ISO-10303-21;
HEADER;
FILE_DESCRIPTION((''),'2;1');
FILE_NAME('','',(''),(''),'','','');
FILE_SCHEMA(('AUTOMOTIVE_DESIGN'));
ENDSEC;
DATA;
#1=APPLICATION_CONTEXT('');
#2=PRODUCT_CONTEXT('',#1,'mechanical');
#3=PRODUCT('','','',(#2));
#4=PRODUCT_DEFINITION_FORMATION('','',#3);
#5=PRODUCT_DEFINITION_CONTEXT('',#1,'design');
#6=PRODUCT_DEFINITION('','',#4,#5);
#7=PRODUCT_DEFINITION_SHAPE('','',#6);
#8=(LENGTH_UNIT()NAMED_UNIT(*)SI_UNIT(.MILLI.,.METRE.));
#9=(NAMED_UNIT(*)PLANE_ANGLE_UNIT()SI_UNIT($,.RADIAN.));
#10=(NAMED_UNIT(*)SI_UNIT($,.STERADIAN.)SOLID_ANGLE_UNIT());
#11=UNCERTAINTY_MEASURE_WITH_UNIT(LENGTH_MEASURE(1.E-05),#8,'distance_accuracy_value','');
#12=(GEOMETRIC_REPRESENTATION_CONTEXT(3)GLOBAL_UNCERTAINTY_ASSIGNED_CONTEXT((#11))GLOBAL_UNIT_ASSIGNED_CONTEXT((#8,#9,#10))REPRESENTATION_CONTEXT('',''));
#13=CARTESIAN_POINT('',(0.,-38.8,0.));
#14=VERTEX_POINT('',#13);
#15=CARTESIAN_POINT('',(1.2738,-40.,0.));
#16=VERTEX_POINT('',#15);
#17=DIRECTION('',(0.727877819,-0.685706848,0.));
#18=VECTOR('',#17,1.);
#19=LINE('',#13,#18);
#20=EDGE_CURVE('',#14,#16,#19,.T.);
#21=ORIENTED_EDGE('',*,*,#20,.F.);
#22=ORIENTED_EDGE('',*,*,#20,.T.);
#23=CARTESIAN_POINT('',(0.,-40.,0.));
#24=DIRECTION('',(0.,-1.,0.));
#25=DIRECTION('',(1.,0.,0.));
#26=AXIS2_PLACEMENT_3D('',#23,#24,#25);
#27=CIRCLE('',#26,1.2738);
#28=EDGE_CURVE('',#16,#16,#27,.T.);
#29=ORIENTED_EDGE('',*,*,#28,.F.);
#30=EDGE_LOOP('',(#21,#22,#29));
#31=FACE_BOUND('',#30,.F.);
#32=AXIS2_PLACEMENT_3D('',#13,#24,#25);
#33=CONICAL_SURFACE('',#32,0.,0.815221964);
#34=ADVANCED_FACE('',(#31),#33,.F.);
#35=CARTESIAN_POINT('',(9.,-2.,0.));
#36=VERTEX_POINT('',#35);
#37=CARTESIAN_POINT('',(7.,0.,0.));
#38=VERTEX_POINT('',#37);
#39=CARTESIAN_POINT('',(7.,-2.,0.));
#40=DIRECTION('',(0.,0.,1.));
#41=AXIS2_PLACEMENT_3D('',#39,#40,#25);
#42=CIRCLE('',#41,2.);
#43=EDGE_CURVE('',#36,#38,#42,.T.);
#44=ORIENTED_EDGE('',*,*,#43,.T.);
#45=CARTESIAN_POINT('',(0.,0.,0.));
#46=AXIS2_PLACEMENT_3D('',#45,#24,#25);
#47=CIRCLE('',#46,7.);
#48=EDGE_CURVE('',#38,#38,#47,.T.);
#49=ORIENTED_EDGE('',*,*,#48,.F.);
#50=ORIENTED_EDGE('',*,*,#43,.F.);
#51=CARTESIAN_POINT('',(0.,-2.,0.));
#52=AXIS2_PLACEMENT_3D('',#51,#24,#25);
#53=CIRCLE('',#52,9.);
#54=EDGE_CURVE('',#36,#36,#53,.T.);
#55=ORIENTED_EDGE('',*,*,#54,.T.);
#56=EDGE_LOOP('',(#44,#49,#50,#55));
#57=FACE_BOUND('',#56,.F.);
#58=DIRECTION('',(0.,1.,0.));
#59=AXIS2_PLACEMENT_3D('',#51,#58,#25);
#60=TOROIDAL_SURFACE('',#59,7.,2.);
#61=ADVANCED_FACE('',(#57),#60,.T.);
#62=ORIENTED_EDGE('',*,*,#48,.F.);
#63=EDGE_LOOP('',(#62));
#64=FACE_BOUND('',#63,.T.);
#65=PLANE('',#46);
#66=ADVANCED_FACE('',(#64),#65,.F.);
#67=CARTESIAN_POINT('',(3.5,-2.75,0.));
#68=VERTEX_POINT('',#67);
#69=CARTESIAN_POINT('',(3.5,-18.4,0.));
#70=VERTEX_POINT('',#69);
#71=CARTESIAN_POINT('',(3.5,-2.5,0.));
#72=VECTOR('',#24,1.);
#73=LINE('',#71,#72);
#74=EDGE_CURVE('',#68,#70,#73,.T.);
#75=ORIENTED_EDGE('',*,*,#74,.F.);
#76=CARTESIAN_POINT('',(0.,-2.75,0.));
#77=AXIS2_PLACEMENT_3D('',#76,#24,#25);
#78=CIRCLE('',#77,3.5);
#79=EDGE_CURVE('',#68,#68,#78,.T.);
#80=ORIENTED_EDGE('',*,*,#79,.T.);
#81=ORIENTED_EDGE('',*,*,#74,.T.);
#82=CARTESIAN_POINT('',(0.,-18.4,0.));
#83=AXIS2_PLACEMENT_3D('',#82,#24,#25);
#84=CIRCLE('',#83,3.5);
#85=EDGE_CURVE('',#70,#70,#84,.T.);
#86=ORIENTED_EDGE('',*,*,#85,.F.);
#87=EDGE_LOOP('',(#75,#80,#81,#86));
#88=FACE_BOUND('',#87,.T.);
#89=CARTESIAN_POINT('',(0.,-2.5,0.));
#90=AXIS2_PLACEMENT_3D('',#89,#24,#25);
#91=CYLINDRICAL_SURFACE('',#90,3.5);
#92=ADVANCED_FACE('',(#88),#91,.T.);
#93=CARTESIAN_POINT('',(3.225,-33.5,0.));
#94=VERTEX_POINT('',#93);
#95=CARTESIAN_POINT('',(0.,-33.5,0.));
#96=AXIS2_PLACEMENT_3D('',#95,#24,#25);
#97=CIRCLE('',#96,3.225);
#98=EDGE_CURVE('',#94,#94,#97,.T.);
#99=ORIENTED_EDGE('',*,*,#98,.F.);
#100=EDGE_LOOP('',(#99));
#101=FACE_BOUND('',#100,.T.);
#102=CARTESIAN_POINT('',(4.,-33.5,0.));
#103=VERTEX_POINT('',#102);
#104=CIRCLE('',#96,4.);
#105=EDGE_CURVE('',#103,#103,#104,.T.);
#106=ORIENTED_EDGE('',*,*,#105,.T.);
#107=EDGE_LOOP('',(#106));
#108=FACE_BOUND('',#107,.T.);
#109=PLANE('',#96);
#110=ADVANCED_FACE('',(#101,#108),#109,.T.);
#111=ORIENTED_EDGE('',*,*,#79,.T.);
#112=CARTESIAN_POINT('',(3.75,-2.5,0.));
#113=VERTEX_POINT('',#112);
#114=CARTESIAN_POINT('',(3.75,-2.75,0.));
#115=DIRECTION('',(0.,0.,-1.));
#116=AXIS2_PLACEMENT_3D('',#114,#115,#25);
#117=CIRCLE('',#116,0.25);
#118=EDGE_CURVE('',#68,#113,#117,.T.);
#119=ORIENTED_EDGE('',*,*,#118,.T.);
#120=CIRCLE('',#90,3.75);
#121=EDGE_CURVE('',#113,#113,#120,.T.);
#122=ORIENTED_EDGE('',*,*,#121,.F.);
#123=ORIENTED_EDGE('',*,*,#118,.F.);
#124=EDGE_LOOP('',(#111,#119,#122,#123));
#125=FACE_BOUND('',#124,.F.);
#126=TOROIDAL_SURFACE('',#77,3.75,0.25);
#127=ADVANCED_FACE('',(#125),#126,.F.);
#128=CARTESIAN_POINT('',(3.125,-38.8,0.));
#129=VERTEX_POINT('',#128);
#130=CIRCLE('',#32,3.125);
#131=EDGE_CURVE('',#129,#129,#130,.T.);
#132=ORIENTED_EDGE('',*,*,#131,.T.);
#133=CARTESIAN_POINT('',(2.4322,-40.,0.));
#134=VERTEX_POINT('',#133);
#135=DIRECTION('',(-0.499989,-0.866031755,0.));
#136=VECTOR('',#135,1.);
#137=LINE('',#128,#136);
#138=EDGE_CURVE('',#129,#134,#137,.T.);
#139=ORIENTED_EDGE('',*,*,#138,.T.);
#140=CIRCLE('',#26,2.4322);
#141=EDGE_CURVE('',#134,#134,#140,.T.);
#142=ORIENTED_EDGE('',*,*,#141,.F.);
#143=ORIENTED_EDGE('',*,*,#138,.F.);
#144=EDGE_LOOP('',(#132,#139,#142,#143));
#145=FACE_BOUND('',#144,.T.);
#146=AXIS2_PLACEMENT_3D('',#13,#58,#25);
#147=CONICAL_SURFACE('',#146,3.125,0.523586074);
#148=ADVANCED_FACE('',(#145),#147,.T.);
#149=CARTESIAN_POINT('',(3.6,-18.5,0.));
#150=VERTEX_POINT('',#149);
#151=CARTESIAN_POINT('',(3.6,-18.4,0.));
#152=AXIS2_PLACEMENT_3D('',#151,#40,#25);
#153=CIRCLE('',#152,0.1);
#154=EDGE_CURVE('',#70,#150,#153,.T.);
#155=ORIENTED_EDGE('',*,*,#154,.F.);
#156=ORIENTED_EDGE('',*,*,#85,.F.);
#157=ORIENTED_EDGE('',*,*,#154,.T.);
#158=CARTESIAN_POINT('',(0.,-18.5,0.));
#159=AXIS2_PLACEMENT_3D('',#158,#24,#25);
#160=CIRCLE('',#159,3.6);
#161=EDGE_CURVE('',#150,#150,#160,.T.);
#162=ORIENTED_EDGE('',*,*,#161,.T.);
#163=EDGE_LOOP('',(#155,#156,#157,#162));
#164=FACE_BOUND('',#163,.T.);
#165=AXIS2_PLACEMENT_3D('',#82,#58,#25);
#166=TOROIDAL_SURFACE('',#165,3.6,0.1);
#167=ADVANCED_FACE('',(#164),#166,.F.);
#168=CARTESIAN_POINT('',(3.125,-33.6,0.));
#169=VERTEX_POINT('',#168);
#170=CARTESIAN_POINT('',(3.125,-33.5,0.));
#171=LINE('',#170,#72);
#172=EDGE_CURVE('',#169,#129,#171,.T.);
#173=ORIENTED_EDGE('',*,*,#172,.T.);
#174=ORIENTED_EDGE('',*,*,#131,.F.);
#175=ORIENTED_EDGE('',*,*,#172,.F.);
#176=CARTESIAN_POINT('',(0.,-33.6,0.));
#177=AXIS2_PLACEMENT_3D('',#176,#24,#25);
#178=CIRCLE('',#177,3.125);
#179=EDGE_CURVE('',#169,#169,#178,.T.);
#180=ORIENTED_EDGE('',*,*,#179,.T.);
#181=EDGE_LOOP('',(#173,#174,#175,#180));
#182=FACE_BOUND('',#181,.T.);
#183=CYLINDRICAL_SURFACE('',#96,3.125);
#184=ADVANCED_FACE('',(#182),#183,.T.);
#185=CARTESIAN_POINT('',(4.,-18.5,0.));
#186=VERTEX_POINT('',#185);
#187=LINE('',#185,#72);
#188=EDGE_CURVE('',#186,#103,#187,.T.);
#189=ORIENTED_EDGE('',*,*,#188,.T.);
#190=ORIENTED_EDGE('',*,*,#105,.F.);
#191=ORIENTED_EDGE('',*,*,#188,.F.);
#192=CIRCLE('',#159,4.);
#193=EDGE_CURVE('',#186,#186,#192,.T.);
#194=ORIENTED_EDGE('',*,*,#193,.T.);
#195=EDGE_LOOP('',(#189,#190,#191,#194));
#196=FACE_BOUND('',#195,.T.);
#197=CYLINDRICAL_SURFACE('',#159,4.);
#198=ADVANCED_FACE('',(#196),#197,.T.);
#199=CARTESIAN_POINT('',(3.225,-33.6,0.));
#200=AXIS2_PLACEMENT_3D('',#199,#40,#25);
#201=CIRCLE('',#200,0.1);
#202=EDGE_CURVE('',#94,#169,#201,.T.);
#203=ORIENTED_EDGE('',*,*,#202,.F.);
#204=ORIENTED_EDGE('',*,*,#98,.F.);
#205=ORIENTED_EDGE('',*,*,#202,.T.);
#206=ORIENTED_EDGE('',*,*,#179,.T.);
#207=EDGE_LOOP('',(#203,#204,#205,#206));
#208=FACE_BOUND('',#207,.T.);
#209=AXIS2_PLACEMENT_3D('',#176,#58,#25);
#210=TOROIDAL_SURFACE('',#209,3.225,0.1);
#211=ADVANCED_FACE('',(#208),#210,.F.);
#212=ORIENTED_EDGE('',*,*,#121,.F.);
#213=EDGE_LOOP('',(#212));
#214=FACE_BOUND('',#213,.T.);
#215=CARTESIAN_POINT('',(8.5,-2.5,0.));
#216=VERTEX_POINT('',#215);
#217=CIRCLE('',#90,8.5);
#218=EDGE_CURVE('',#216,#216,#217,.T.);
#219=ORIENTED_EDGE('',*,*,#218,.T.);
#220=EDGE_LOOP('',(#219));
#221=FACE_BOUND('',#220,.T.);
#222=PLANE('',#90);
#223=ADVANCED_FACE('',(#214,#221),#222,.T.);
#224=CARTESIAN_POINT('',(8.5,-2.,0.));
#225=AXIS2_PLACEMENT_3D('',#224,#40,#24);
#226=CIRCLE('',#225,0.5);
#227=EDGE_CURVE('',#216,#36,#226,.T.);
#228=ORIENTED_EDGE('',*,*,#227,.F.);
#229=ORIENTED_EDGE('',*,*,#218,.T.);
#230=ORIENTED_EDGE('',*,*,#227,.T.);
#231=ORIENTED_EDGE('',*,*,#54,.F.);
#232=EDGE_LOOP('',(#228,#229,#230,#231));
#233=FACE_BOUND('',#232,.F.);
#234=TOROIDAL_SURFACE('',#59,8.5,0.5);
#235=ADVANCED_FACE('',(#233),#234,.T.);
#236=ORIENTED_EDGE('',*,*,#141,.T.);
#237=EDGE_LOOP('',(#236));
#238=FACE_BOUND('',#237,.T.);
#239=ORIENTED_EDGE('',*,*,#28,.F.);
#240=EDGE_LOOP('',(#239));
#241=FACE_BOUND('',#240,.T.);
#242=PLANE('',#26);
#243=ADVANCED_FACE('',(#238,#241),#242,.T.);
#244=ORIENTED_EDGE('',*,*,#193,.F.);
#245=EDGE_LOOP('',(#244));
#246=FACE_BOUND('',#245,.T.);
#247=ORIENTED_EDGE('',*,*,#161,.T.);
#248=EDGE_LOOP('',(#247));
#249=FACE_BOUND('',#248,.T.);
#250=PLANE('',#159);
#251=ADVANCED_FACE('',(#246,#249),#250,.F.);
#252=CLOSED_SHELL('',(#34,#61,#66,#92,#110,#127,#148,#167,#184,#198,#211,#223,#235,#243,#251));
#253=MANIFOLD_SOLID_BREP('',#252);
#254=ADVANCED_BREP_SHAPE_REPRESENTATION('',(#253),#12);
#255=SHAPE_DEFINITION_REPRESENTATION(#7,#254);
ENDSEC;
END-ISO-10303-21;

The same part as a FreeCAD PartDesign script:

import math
import FreeCAD as App
import Part
import Sketcher
from FreeCAD import Vector
Q = App.Units.Quantity


def edges_at(feature, points):
    """Names of the edges that pass closest to the given points."""
    edges = feature.Shape.Edges
    near = lambda p: min(range(len(edges)), key=lambda i: edges[i].distToShape(Part.Vertex(*p))[0])
    return sorted({f"Edge{near(p) + 1}" for p in points})

doc = App.newDocument("Part")
body = doc.addObject("PartDesign::Body", "Body")

# Sketch on XY plane
sketch1 = body.newObject("Sketcher::SketchObject", "Sketch")
sketch1.AttachmentSupport = (doc.getObject("XY_Plane"), [""])
sketch1.MapMode = "FlatFace"
sketch1.addGeometry(Part.LineSegment(Vector(7, 0, 0), Vector(0, 0, 0)), False)
sketch1.addGeometry(Part.LineSegment(Vector(0, 0, 0), Vector(0, -38.8, 0)), False)
sketch1.addGeometry(Part.LineSegment(Vector(0, -38.8, 0), Vector(1.3, -40, 0)), False)
sketch1.addGeometry(Part.LineSegment(Vector(1.3, -40, 0), Vector(2.4, -40, 0)), False)
sketch1.addGeometry(Part.LineSegment(Vector(2.4, -40, 0), Vector(3.1, -38.8, 0)), False)
sketch1.addGeometry(Part.LineSegment(Vector(3.1, -38.8, 0), Vector(3.1, -33.5, 0)), False)
sketch1.addGeometry(Part.LineSegment(Vector(3.1, -33.5, 0), Vector(4, -33.5, 0)), False)
sketch1.addGeometry(Part.LineSegment(Vector(4, -33.5, 0), Vector(4, -18.5, 0)), False)
sketch1.addGeometry(Part.LineSegment(Vector(4, -18.5, 0), Vector(3.5, -18.5, 0)), False)
sketch1.addGeometry(Part.LineSegment(Vector(3.5, -18.5, 0), Vector(3.5, -2.5, 0)), False)
sketch1.addGeometry(Part.LineSegment(Vector(3.5, -2.5, 0), Vector(8.5, -2.5, 0)), False)
sketch1.addGeometry(Part.ArcOfCircle(Part.Circle(Vector(8.5, -2, 0), Vector(0, 0, 1), 0.5), math.radians(-90), math.radians(0)), False)
sketch1.addGeometry(Part.ArcOfCircle(Part.Circle(Vector(7, -2, 0), Vector(0, 0, 1), 2), math.radians(0), math.radians(90)), False)
sketch1.addConstraint(Sketcher.Constraint("Coincident", 0, 2, 1, 1))
sketch1.addConstraint(Sketcher.Constraint("Coincident", 1, 2, 2, 1))
sketch1.addConstraint(Sketcher.Constraint("Coincident", 2, 2, 3, 1))
sketch1.addConstraint(Sketcher.Constraint("Coincident", 3, 2, 4, 1))
sketch1.addConstraint(Sketcher.Constraint("Coincident", 4, 2, 5, 1))
sketch1.addConstraint(Sketcher.Constraint("Coincident", 5, 2, 6, 1))
sketch1.addConstraint(Sketcher.Constraint("Coincident", 6, 2, 7, 1))
sketch1.addConstraint(Sketcher.Constraint("Coincident", 7, 2, 8, 1))
sketch1.addConstraint(Sketcher.Constraint("Coincident", 8, 2, 9, 1))
sketch1.addConstraint(Sketcher.Constraint("Coincident", 9, 2, 10, 1))
sketch1.addConstraint(Sketcher.Constraint("Tangent", 10, 2, 11, 1))
sketch1.addConstraint(Sketcher.Constraint("Tangent", 11, 2, 12, 1))
sketch1.addConstraint(Sketcher.Constraint("Tangent", 12, 2, 0, 1))
sketch1.addConstraint(Sketcher.Constraint("Horizontal", 0))
sketch1.addConstraint(Sketcher.Constraint("Vertical", 1))
sketch1.addConstraint(Sketcher.Constraint("Horizontal", 3))
sketch1.addConstraint(Sketcher.Constraint("Vertical", 5))
sketch1.addConstraint(Sketcher.Constraint("Horizontal", 6))
sketch1.addConstraint(Sketcher.Constraint("Vertical", 7))
sketch1.addConstraint(Sketcher.Constraint("Horizontal", 8))
sketch1.addConstraint(Sketcher.Constraint("Vertical", 9))
sketch1.addConstraint(Sketcher.Constraint("Horizontal", 10))
sketch1.addConstraint(Sketcher.Constraint("Coincident", 0, 2, -1, 1))
sketch1.addConstraint(Sketcher.Constraint("Horizontal", 11, 3, 12, 3))
sketch1.addConstraint(Sketcher.Constraint("Horizontal", 1, 2, 4, 2))
sketch1.addConstraint(Sketcher.Constraint("Radius", 12, Q("2 mm")))
sketch1.addConstraint(Sketcher.Constraint("Radius", 11, Q("0.5 mm")))
sketch1.addConstraint(Sketcher.Constraint("DistanceY", 7, 1, 7, 2, Q("15 mm")))
sketch1.addConstraint(Sketcher.Constraint("DistanceY", 9, 1, 9, 2, Q("16 mm")))
sketch1.addConstraint(Sketcher.Constraint("DistanceX", 8, 2, 8, 1, Q("0.5 mm")))
sketch1.addConstraint(Sketcher.Constraint("DistanceY", 2, 2, -1, 1, Q("40 mm")))
sketch1.addConstraint(Sketcher.Constraint("DistanceX", -1, 1, 6, 2, Q("4 mm")))
sketch1.addConstraint(Sketcher.Constraint("DistanceX", -1, 1, 11, 2, Q("9 mm")))
sketch1.addConstraint(Sketcher.Constraint("DistanceY", 2, 2, 1, 2, Q("1.2 mm")))
sketch1.addConstraint(Sketcher.Constraint("Distance", 2, Q("1.75 mm")))
sketch1.addConstraint(Sketcher.Constraint("Angle", 4, Q("60.0007 deg")))
sketch1.addConstraint(Sketcher.Constraint("DistanceX", -1, 1, 4, 2, Q("3.125 mm")))
revolution = body.newObject("PartDesign::Revolution", "Revolution")
revolution.Profile = sketch1
revolution.ReferenceAxis = (sketch1, ["V_Axis"])
revolution.Angle = 360
doc.recompute()

fillet = body.newObject("PartDesign::Fillet", "Fillet")
fillet.Base = (revolution, edges_at(revolution, [(-3.125, -33.5, 0), (-3.5, -18.5, 0)]))
fillet.Radius = 0.1
doc.recompute()

fillet2 = body.newObject("PartDesign::Fillet", "Fillet001")
fillet2.Base = (fillet, edges_at(fillet, [(-3.5, -2.5, 0)]))
fillet2.Radius = 0.25

doc.recompute()
